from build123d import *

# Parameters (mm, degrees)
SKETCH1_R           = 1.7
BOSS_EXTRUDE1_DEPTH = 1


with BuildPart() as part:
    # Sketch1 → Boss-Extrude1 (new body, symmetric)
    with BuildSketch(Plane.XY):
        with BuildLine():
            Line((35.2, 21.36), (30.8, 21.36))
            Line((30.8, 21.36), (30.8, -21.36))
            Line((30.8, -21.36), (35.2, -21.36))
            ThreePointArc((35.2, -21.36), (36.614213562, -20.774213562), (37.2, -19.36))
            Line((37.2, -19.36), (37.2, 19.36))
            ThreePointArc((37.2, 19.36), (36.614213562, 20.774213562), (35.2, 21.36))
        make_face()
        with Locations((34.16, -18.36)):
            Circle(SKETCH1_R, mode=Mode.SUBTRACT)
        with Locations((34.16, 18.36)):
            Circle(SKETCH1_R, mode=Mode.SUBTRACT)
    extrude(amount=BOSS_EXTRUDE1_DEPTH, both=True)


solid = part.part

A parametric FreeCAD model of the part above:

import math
import FreeCAD as App
import Part
import Sketcher

V = App.Vector

doc = App.newDocument("Part")
body = doc.addObject("PartDesign::Body", "Body")

# Sketch on XY plane
sketch1 = doc.addObject("Sketcher::SketchObject", "Sketch")
body.addObject(sketch1)
sketch1.AttachmentSupport = (doc.XY_Plane, [""])
sketch1.MapMode = "FlatFace"
sketch1.addGeometry([
    Part.LineSegment(V(35.2, 21.36, 0), V(30.8, 21.36, 0)),  # 0
    Part.LineSegment(V(30.8, 21.36, 0), V(30.8, -21.36, 0)),  # 1
    Part.LineSegment(V(30.8, -21.36, 0), V(35.2, -21.36, 0)),  # 2
    Part.ArcOfCircle(Part.Circle(V(35.2, -19.36, 0), V(0, 0, 1), 2), math.radians(-90), math.radians(0)),  # 3
    Part.LineSegment(V(37.2, -19.36, 0), V(37.2, 19.36, 0)),  # 4
    Part.ArcOfCircle(Part.Circle(V(35.2, 19.36, 0), V(0, 0, 1), 2), math.radians(0), math.radians(90)),  # 5
    Part.Circle(V(34.16, -18.36, 0), V(0, 0, 1), 1.7),  # 6
    Part.Circle(V(34.16, 18.36, 0), V(0, 0, 1), 1.7),  # 7
], False)
sketch1.addConstraint([
    Sketcher.Constraint("Coincident", 0, 2, 1, 1),
    Sketcher.Constraint("Coincident", 1, 2, 2, 1),
    Sketcher.Constraint("Tangent", 2, 2, 3, 1),
    Sketcher.Constraint("Tangent", 3, 2, 4, 1),
    Sketcher.Constraint("Tangent", 4, 2, 5, 1),
    Sketcher.Constraint("Tangent", 5, 2, 0, 1),
    Sketcher.Constraint("Horizontal", 0),
    Sketcher.Constraint("Vertical", 1),
    Sketcher.Constraint("Horizontal", 2),
    Sketcher.Constraint("Vertical", 4),
    Sketcher.Constraint("Equal", 3, 5),
    Sketcher.Constraint("Equal", 6, 7),
    Sketcher.Constraint("Symmetric", 6, 3, 7, 3, -1),
    Sketcher.Constraint("Radius", 3, 2.0),
    Sketcher.Constraint("Diameter", 6, 3.4),
    Sketcher.Constraint("DistanceX", 0, 2, 0, 1, 4.4),
    Sketcher.Constraint("DistanceY", 3, 3, 6, 3, 1.0),
    Sketcher.Constraint("DistanceY", 7, 3, 5, 3, 1.0),
    Sketcher.Constraint("DistanceY", 1, 2, 1, 1, 42.72),
    Sketcher.Constraint("DistanceX", -1, 1, 3, 3, 35.2),
    Sketcher.Constraint("DistanceX", -1, 1, 6, 3, 34.16),
])
pad1 = doc.addObject("PartDesign::Pad", "Pad")
body.addObject(pad1)
pad1.Profile = sketch1
pad1.Length = 2
pad1.Midplane = True

doc.recompute()
